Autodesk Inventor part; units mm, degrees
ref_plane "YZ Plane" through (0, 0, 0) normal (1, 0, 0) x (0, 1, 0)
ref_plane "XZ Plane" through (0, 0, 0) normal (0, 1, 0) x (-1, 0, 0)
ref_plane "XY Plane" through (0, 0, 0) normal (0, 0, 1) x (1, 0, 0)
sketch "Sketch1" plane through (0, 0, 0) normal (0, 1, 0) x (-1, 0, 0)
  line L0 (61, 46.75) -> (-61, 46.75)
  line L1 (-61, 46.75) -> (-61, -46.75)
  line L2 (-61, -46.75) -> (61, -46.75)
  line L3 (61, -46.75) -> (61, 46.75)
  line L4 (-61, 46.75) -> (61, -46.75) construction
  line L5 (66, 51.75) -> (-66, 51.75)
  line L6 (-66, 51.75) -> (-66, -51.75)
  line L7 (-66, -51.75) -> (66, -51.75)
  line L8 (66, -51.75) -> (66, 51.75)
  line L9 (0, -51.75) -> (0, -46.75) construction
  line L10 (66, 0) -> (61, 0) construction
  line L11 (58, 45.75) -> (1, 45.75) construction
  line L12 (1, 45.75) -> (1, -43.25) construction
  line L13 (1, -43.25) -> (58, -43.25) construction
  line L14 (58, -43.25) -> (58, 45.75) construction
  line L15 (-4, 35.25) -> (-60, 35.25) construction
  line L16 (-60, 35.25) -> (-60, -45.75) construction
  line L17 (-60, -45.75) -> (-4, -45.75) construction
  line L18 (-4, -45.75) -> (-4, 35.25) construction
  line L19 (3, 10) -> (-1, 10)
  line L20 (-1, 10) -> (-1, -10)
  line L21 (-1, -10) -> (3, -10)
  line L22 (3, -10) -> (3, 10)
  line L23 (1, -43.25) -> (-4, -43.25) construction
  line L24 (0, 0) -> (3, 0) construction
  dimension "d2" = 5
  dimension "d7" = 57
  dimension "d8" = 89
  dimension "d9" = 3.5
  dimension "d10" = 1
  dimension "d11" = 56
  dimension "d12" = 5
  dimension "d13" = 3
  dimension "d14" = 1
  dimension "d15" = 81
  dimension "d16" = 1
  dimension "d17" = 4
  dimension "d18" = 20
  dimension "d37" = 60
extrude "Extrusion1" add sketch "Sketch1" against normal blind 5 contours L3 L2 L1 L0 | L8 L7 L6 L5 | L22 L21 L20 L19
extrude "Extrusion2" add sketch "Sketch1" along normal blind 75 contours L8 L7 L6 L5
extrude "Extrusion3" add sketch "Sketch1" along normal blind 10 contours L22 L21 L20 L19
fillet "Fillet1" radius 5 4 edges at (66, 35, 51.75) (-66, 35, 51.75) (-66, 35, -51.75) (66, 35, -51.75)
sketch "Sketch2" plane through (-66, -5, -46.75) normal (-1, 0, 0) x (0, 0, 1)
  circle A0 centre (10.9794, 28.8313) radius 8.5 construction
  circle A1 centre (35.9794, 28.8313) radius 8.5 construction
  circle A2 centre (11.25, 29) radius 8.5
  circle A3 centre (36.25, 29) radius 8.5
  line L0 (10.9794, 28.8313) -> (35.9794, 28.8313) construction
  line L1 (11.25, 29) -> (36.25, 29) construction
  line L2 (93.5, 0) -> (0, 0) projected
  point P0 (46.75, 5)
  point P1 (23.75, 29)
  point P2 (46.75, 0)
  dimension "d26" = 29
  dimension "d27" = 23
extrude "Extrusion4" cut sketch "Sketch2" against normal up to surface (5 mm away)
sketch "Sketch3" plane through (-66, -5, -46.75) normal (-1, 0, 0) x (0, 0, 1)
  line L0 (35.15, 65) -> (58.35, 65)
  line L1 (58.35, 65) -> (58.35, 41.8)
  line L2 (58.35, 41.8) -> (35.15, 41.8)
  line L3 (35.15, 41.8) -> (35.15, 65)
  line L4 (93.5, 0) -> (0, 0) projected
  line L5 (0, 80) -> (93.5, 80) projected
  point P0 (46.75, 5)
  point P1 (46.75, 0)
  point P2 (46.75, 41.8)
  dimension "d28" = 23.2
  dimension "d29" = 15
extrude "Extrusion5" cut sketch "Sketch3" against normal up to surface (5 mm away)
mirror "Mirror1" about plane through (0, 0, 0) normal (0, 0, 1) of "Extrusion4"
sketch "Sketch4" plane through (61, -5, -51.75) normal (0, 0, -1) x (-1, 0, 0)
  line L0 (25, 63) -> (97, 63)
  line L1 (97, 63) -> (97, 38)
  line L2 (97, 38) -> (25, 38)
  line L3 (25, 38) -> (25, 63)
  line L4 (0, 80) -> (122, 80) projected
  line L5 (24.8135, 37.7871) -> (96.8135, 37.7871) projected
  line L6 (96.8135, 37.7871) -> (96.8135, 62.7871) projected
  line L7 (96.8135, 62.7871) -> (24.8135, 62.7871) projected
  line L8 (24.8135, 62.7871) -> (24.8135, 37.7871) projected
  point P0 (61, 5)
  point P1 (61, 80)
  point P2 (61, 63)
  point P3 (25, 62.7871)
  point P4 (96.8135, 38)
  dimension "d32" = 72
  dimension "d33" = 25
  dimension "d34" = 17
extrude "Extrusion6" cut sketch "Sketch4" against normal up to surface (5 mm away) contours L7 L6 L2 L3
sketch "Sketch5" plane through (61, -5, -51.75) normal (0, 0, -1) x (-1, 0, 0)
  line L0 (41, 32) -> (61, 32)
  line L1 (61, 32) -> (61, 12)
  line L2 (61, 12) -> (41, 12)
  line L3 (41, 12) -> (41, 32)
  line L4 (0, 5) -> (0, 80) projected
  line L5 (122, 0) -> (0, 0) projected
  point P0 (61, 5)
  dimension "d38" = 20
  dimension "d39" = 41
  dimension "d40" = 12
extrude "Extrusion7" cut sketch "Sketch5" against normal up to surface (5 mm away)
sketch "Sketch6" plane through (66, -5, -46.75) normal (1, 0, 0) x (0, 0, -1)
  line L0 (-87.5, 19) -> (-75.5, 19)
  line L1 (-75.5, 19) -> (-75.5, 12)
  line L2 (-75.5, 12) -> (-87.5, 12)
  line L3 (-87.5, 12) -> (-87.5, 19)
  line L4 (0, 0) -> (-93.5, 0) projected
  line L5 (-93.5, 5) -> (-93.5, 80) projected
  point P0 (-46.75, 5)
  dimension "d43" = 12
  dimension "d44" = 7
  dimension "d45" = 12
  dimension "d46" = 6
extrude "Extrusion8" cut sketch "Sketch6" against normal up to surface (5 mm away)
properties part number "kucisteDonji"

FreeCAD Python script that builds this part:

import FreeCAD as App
import Part
import Sketcher
from FreeCAD import Vector
Q = App.Units.Quantity


def edges_at(feature, points):
    """Names of the edges that pass closest to the given points."""
    edges = feature.Shape.Edges
    near = lambda p: min(range(len(edges)), key=lambda i: edges[i].distToShape(Part.Vertex(*p))[0])
    return sorted({f"Edge{near(p) + 1}" for p in points})

doc = App.newDocument("Part")
body = doc.addObject("PartDesign::Body", "Body")

# Sketch on XZ plane
sketch1 = body.newObject("Sketcher::SketchObject", "Sketch")
sketch1.AttachmentSupport = (doc.getObject("XZ_Plane"), [""])
sketch1.MapMode = "FlatFace"
sketch1.addGeometry([
    Part.LineSegment(Vector(-66, -51.75, 0), Vector(-66, 51.75, 0)),
    Part.LineSegment(Vector(-66, 51.75, 0), Vector(66, 51.75, 0)),
    Part.LineSegment(Vector(66, 51.75, 0), Vector(66, -51.75, 0)),
    Part.LineSegment(Vector(66, -51.75, 0), Vector(-66, -51.75, 0)),
], False)
sketch1.addConstraint([
    Sketcher.Constraint("Coincident", 0, 2, 1, 1),
    Sketcher.Constraint("Coincident", 1, 2, 2, 1),
    Sketcher.Constraint("Coincident", 2, 2, 3, 1),
    Sketcher.Constraint("Coincident", 3, 2, 0, 1),
    Sketcher.Constraint("Vertical", 0),
    Sketcher.Constraint("Horizontal", 1),
    Sketcher.Constraint("Vertical", 2),
    Sketcher.Constraint("Horizontal", 3),
    Sketcher.Constraint("Symmetric", 0, 2, 2, 2, -1, 1),
    Sketcher.Constraint("DistanceX", 1, 1, 1, 2, Q("132 mm")),
    Sketcher.Constraint("DistanceY", 0, 1, 0, 2, Q("103.5 mm")),
])
pad1 = body.newObject("PartDesign::Pad", "Pad")
pad1.Profile = sketch1
pad1.Length = 5

# Sketch on XZ plane
sketch2 = body.newObject("Sketcher::SketchObject", "Sketch001")
sketch2.AttachmentSupport = (doc.getObject("XZ_Plane"), [""])
sketch2.MapMode = "FlatFace"
sketch2.addGeometry([
    Part.LineSegment(Vector(-66, -51.75, 0), Vector(-66, 51.75, 0)),  # 0
    Part.LineSegment(Vector(-66, 51.75, 0), Vector(66, 51.75, 0)),  # 1
    Part.LineSegment(Vector(66, 51.75, 0), Vector(66, -51.75, 0)),  # 2
    Part.LineSegment(Vector(66, -51.75, 0), Vector(-66, -51.75, 0)),  # 3
    Part.LineSegment(Vector(61, 46.75, 0), Vector(-61, 46.75, 0)),  # 4
    Part.LineSegment(Vector(-61, 46.75, 0), Vector(-61, -46.75, 0)),  # 5
    Part.LineSegment(Vector(-61, -46.75, 0), Vector(61, -46.75, 0)),  # 6
    Part.LineSegment(Vector(61, -46.75, 0), Vector(61, 46.75, 0)),  # 7
], False)
sketch2.addConstraint([
    Sketcher.Constraint("Coincident", 0, 2, 1, 1),
    Sketcher.Constraint("Coincident", 1, 2, 2, 1),
    Sketcher.Constraint("Coincident", 2, 2, 3, 1),
    Sketcher.Constraint("Coincident", 3, 2, 0, 1),
    Sketcher.Constraint("Coincident", 4, 2, 5, 1),
    Sketcher.Constraint("Coincident", 5, 2, 6, 1),
    Sketcher.Constraint("Coincident", 6, 2, 7, 1),
    Sketcher.Constraint("Coincident", 7, 2, 4, 1),
    Sketcher.Constraint("Vertical", 0),
    Sketcher.Constraint("Horizontal", 1),
    Sketcher.Constraint("Vertical", 2),
    Sketcher.Constraint("Horizontal", 3),
    Sketcher.Constraint("Horizontal", 4),
    Sketcher.Constraint("Vertical", 5),
    Sketcher.Constraint("Horizontal", 6),
    Sketcher.Constraint("Vertical", 7),
    Sketcher.Constraint("Symmetric", 0, 2, 2, 2, -1, 1),
    Sketcher.Constraint("Symmetric", 4, 2, 6, 2, -1, 1),
    Sketcher.Constraint("DistanceX", 0, 2, 4, 2, Q("5 mm")),
    Sketcher.Constraint("DistanceY", 4, 2, 0, 2, Q("5 mm")),
    Sketcher.Constraint("DistanceX", 1, 1, 1, 2, Q("132 mm")),
    Sketcher.Constraint("DistanceY", 0, 1, 0, 2, Q("103.5 mm")),
])
pad2 = body.newObject("PartDesign::Pad", "Pad001")
pad2.Profile = sketch2
pad2.Length = 75
pad2.Reversed = True

# Sketch on XZ plane
sketch3 = body.newObject("Sketcher::SketchObject", "Sketch002")
sketch3.AttachmentSupport = (doc.getObject("XZ_Plane"), [""])
sketch3.MapMode = "FlatFace"
sketch3.addGeometry([
    Part.LineSegment(Vector(-3, -10, 0), Vector(-3, 10, 0)),
    Part.LineSegment(Vector(-3, 10, 0), Vector(1, 10, 0)),
    Part.LineSegment(Vector(1, 10, 0), Vector(1, -10, 0)),
    Part.LineSegment(Vector(1, -10, 0), Vector(-3, -10, 0)),
], False)
sketch3.addConstraint([
    Sketcher.Constraint("Coincident", 0, 2, 1, 1),
    Sketcher.Constraint("Coincident", 1, 2, 2, 1),
    Sketcher.Constraint("Coincident", 2, 2, 3, 1),
    Sketcher.Constraint("Coincident", 3, 2, 0, 1),
    Sketcher.Constraint("Vertical", 0),
    Sketcher.Constraint("Horizontal", 1),
    Sketcher.Constraint("Vertical", 2),
    Sketcher.Constraint("Horizontal", 3),
    Sketcher.Constraint("DistanceX", 1, 1, 1, 2, Q("4 mm")),
    Sketcher.Constraint("DistanceY", 0, 1, 0, 2, Q("20 mm")),
    Sketcher.Constraint("DistanceX", 0, 2, -1, 1, Q("3 mm")),
    Sketcher.Constraint("DistanceY", -1, 1, 0, 2, Q("10 mm")),
])
pad3 = body.newObject("PartDesign::Pad", "Pad002")
pad3.Profile = sketch3
pad3.Length = 10
pad3.Reversed = True
doc.recompute()

fillet = body.newObject("PartDesign::Fillet", "Fillet")
fillet.Base = (pad3, edges_at(pad3, [
    (66, 35, 51.75),
    (-66, 35, 51.75),
    (-66, 35, -51.75),
    (66, 35, -51.75),
]))
fillet.Radius = 5

# Sketch on YZ plane
sketch4 = body.newObject("Sketcher::SketchObject", "Sketch003")
sketch4.AttachmentSupport = (doc.getObject("YZ_Plane"), [""])
sketch4.MapMode = "FlatFace"
sketch4.AttachmentOffset = App.Placement(Vector(0, 0, -66), App.Rotation())
sketch4.addGeometry([
    Part.Circle(Vector(24, -35.5, 0), Vector(0, 0, 1), 8.5),
    Part.Circle(Vector(24, -10.5, 0), Vector(0, 0, 1), 8.5),
], False)
sketch4.addConstraint([
    Sketcher.Constraint("Equal", 0, 1),
    Sketcher.Constraint("Vertical", 0, 3, 1, 3),
    Sketcher.Constraint("Diameter", 0, Q("17 mm")),
    Sketcher.Constraint("DistanceX", -1, 1, 0, 3, Q("24 mm")),
    Sketcher.Constraint("DistanceY", 0, 3, 1, 3, Q("25 mm")),
    Sketcher.Constraint("DistanceY", 0, 3, -1, 1, Q("35.5 mm")),
])
pocket1 = body.newObject("PartDesign::Pocket", "Pocket")
pocket1.Profile = sketch4
pocket1.Length = 5
pocket1.Reversed = True

# Sketch on YZ plane
sketch5 = body.newObject("Sketcher::SketchObject", "Sketch004")
sketch5.AttachmentSupport = (doc.getObject("YZ_Plane"), [""])
sketch5.MapMode = "FlatFace"
sketch5.AttachmentOffset = App.Placement(Vector(0, 0, -66), App.Rotation())
sketch5.addGeometry([
    Part.LineSegment(Vector(60, 11.6, 0), Vector(60, -11.6, 0)),
    Part.LineSegment(Vector(60, -11.6, 0), Vector(36.8, -11.6, 0)),
    Part.LineSegment(Vector(36.8, -11.6, 0), Vector(36.8, 11.6, 0)),
    Part.LineSegment(Vector(36.8, 11.6, 0), Vector(60, 11.6, 0)),
], False)
sketch5.addConstraint([
    Sketcher.Constraint("Coincident", 0, 2, 1, 1),
    Sketcher.Constraint("Coincident", 1, 2, 2, 1),
    Sketcher.Constraint("Coincident", 2, 2, 3, 1),
    Sketcher.Constraint("Coincident", 3, 2, 0, 1),
    Sketcher.Constraint("Vertical", 0),
    Sketcher.Constraint("Horizontal", 1),
    Sketcher.Constraint("Vertical", 2),
    Sketcher.Constraint("Horizontal", 3),
    Sketcher.Constraint("Equal", 3, 0),
    Sketcher.Constraint("DistanceX", 1, 2, 1, 1, Q("23.2 mm")),
    Sketcher.Constraint("DistanceX", -1, 1, 0, 2, Q("60 mm")),
    Sketcher.Constraint("DistanceY", 0, 2, -1, 1, Q("11.6 mm")),
])
pocket2 = body.newObject("PartDesign::Pocket", "Pocket001")
pocket2.Profile = sketch5
pocket2.Length = 5
pocket2.Reversed = True
doc.recompute()

mirrored = body.newObject("PartDesign::Mirrored", "Mirrored")
mirrored.Originals = [pocket1]
mirrored.MirrorPlane = (doc.getObject("XY_Plane"), [""])
body.Tip = mirrored

# Sketch on XY plane
sketch6 = body.newObject("Sketcher::SketchObject", "Sketch005")
sketch6.AttachmentSupport = (doc.getObject("XY_Plane"), [""])
sketch6.MapMode = "FlatFace"
sketch6.AttachmentOffset = App.Placement(Vector(0, 0, -51.75), App.Rotation())
sketch6.addGeometry([
    Part.LineSegment(Vector(-35.8135, 57.7871, 0), Vector(36, 57.7871, 0)),
    Part.LineSegment(Vector(36, 57.7871, 0), Vector(36, 33, 0)),
    Part.LineSegment(Vector(36, 33, 0), Vector(-35.8135, 33, 0)),
    Part.LineSegment(Vector(-35.8135, 33, 0), Vector(-35.8135, 57.7871, 0)),
], False)
sketch6.addConstraint([
    Sketcher.Constraint("Coincident", 0, 2, 1, 1),
    Sketcher.Constraint("Coincident", 1, 2, 2, 1),
    Sketcher.Constraint("Coincident", 2, 2, 3, 1),
    Sketcher.Constraint("Coincident", 3, 2, 0, 1),
    Sketcher.Constraint("Horizontal", 0),
    Sketcher.Constraint("Vertical", 1),
    Sketcher.Constraint("Horizontal", 2),
    Sketcher.Constraint("Vertical", 3),
    Sketcher.Constraint("DistanceX", -1, 1, 0, 2, Q("36 mm")),
    Sketcher.Constraint("DistanceY", -1, 1, 1, 2, Q("33 mm")),
    Sketcher.Constraint("DistanceY", 1, 2, 1, 1, Q("24.787 mm")),
    Sketcher.Constraint("DistanceX", 0, 1, 0, 2, Q("71.8135 mm")),
])
pocket3 = body.newObject("PartDesign::Pocket", "Pocket002")
pocket3.Profile = sketch6
pocket3.Length = 5
pocket3.Reversed = True

# Sketch on XY plane
sketch7 = body.newObject("Sketcher::SketchObject", "Sketch006")
sketch7.AttachmentSupport = (doc.getObject("XY_Plane"), [""])
sketch7.MapMode = "FlatFace"
sketch7.AttachmentOffset = App.Placement(Vector(0, 0, -51.75), App.Rotation())
sketch7.addGeometry([
    Part.LineSegment(Vector(0, 27, 0), Vector(20, 27, 0)),
    Part.LineSegment(Vector(20, 27, 0), Vector(20, 7, 0)),
    Part.LineSegment(Vector(20, 7, 0), Vector(0, 7, 0)),
    Part.LineSegment(Vector(0, 7, 0), Vector(0, 27, 0)),
], False)
sketch7.addConstraint([
    Sketcher.Constraint("Coincident", 0, 2, 1, 1),
    Sketcher.Constraint("Coincident", 1, 2, 2, 1),
    Sketcher.Constraint("Coincident", 2, 2, 3, 1),
    Sketcher.Constraint("Coincident", 3, 2, 0, 1),
    Sketcher.Constraint("Horizontal", 0),
    Sketcher.Constraint("Vertical", 1),
    Sketcher.Constraint("Horizontal", 2),
    Sketcher.Constraint("Vertical", 3),
    Sketcher.Constraint("PointOnObject", 2, 2, -2),
    Sketcher.Constraint("Equal", 2, 1),
    Sketcher.Constraint("DistanceX", 0, 1, 0, 2, Q("20 mm")),
    Sketcher.Constraint("DistanceY", -1, 1, 0, 2, Q("27 mm")),
])
pocket4 = body.newObject("PartDesign::Pocket", "Pocket003")
pocket4.Profile = sketch7
pocket4.Length = 5
pocket4.Reversed = True

# Sketch on YZ plane
sketch8 = body.newObject("Sketcher::SketchObject", "Sketch007")
sketch8.AttachmentSupport = (doc.getObject("YZ_Plane"), [""])
sketch8.MapMode = "FlatFace"
sketch8.AttachmentOffset = App.Placement(Vector(0, 0, 66), App.Rotation())
sketch8.addGeometry([
    Part.LineSegment(Vector(14, 28.75, 0), Vector(14, 40.75, 0)),
    Part.LineSegment(Vector(14, 40.75, 0), Vector(7, 40.75, 0)),
    Part.LineSegment(Vector(7, 40.75, 0), Vector(7, 28.75, 0)),
    Part.LineSegment(Vector(7, 28.75, 0), Vector(14, 28.75, 0)),
], False)
sketch8.addConstraint([
    Sketcher.Constraint("Coincident", 0, 2, 1, 1),
    Sketcher.Constraint("Coincident", 1, 2, 2, 1),
    Sketcher.Constraint("Coincident", 2, 2, 3, 1),
    Sketcher.Constraint("Coincident", 3, 2, 0, 1),
    Sketcher.Constraint("Vertical", 0),
    Sketcher.Constraint("Horizontal", 1),
    Sketcher.Constraint("Vertical", 2),
    Sketcher.Constraint("Horizontal", 3),
    Sketcher.Constraint("DistanceX", 1, 2, 1, 1, Q("7 mm")),
    Sketcher.Constraint("DistanceY", 0, 1, 0, 2, Q("12 mm")),
    Sketcher.Constraint("DistanceX", -1, 1, 1, 2, Q("7 mm")),
    Sketcher.Constraint("DistanceY", -1, 1, 0, 2, Q("40.75 mm")),
])
pocket5 = body.newObject("PartDesign::Pocket", "Pocket004")
pocket5.Profile = sketch8
pocket5.Length = 5

doc.recompute()
